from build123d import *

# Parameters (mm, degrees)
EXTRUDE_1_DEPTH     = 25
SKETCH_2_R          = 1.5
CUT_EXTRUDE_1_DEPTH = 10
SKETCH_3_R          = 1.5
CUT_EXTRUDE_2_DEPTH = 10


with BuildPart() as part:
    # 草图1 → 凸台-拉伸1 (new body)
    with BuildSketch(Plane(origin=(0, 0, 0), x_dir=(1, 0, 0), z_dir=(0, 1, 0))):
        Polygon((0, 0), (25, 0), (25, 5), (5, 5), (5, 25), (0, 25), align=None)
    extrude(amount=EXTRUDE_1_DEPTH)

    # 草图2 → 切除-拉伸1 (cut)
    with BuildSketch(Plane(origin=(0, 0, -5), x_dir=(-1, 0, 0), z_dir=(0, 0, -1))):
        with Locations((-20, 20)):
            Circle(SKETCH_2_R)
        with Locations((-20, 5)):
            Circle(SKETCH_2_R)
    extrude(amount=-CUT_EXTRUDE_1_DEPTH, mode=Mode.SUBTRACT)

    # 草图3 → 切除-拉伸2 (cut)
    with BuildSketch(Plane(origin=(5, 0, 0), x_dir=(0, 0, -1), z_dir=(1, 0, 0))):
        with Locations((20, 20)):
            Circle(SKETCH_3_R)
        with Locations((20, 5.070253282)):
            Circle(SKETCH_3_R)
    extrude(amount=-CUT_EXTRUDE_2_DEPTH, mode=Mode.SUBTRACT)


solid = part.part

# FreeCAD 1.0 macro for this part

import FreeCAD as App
import Part
import Sketcher

V = App.Vector

doc = App.newDocument("Part")
body = doc.addObject("PartDesign::Body", "Body")

# Sketch on XZ plane
sketch1 = doc.addObject("Sketcher::SketchObject", "Sketch")
body.addObject(sketch1)
sketch1.AttachmentSupport = (doc.XZ_Plane, [""])
sketch1.MapMode = "FlatFace"
sketch1.addGeometry(Part.LineSegment(V(0, 0, 0), V(25, 0, 0)), False)
sketch1.addGeometry(Part.LineSegment(V(25, 0, 0), V(25, -5, 0)), False)
sketch1.addGeometry(Part.LineSegment(V(25, -5, 0), V(5, -5, 0)), False)
sketch1.addGeometry(Part.LineSegment(V(5, -5, 0), V(5, -25, 0)), False)
sketch1.addGeometry(Part.LineSegment(V(5, -25, 0), V(0, -25, 0)), False)
sketch1.addGeometry(Part.LineSegment(V(0, -25, 0), V(0, 0, 0)), False)
sketch1.addConstraint(Sketcher.Constraint("Coincident", 0, 2, 1, 1))
sketch1.addConstraint(Sketcher.Constraint("Coincident", 1, 2, 2, 1))
sketch1.addConstraint(Sketcher.Constraint("Coincident", 2, 2, 3, 1))
sketch1.addConstraint(Sketcher.Constraint("Coincident", 3, 2, 4, 1))
sketch1.addConstraint(Sketcher.Constraint("Coincident", 4, 2, 5, 1))
sketch1.addConstraint(Sketcher.Constraint("Coincident", 5, 2, 0, 1))
sketch1.addConstraint(Sketcher.Constraint("Horizontal", 0))
sketch1.addConstraint(Sketcher.Constraint("Vertical", 1))
sketch1.addConstraint(Sketcher.Constraint("Horizontal", 2))
sketch1.addConstraint(Sketcher.Constraint("Vertical", 3))
sketch1.addConstraint(Sketcher.Constraint("Horizontal", 4))
sketch1.addConstraint(Sketcher.Constraint("Vertical", 5))
sketch1.addConstraint(Sketcher.Constraint("Coincident", 5, 2, -1, 1))
sketch1.addConstraint(Sketcher.Constraint("Equal", 4, 1))
sketch1.addConstraint(Sketcher.Constraint("Equal", 2, 3))
sketch1.addConstraint(Sketcher.Constraint("DistanceX", 0, 1, 0, 2, 25.0))
sketch1.addConstraint(Sketcher.Constraint("DistanceX", 2, 2, 2, 1, 20.0))
pad1 = doc.addObject("PartDesign::Pad", "Pad")
body.addObject(pad1)
pad1.Profile = sketch1
pad1.Length = 25
pad1.Reversed = True

# Sketch on XY plane
sketch2 = doc.addObject("Sketcher::SketchObject", "Sketch001")
body.addObject(sketch2)
sketch2.AttachmentSupport = (doc.XY_Plane, [""])
sketch2.MapMode = "FlatFace"
sketch2.AttachmentOffset = App.Placement(V(0, 0, -5), App.Rotation())
sketch2.addGeometry(Part.Circle(V(20, 20, 0), V(0, 0, 1), 1.5), False)
sketch2.addGeometry(Part.Circle(V(20, 5, 0), V(0, 0, 1), 1.5), False)
sketch2.addConstraint(Sketcher.Constraint("Equal", 0, 1))
sketch2.addConstraint(Sketcher.Constraint("Vertical", 0, 3, 1, 3))
sketch2.addConstraint(Sketcher.Constraint("Diameter", 0, 3.0))
sketch2.addConstraint(Sketcher.Constraint("DistanceX", -1, 1, 0, 3, 20.0))
sketch2.addConstraint(Sketcher.Constraint("DistanceY", -1, 1, 0, 3, 20.0))
sketch2.addConstraint(Sketcher.Constraint("DistanceY", -1, 1, 1, 3, 5.0))
pocket1 = doc.addObject("PartDesign::Pocket", "Pocket")
body.addObject(pocket1)
pocket1.Profile = sketch2
pocket1.Length = 10
pocket1.Reversed = True

# Sketch on YZ plane
sketch3 = doc.addObject("Sketcher::SketchObject", "Sketch002")
body.addObject(sketch3)
sketch3.AttachmentSupport = (doc.YZ_Plane, [""])
sketch3.MapMode = "FlatFace"
sketch3.AttachmentOffset = App.Placement(V(0, 0, 5), App.Rotation())
sketch3.addGeometry(Part.Circle(V(20, -20, 0), V(0, 0, 1), 1.5), False)
sketch3.addGeometry(Part.Circle(V(5.1, -20, 0), V(0, 0, 1), 1.5), False)
sketch3.addConstraint(Sketcher.Constraint("Equal", 0, 1))
sketch3.addConstraint(Sketcher.Constraint("Horizontal", 0, 3, 1, 3))
sketch3.addConstraint(Sketcher.Constraint("Diameter", 0, 3.0))
sketch3.addConstraint(Sketcher.Constraint("DistanceX", -1, 1, 0, 3, 20.0))
sketch3.addConstraint(Sketcher.Constraint("DistanceY", 0, 3, -1, 1, 20.0))
sketch3.addConstraint(Sketcher.Constraint("DistanceX", -1, 1, 1, 3, 5.070253))
pocket2 = doc.addObject("PartDesign::Pocket", "Pocket001")
body.addObject(pocket2)
pocket2.Profile = sketch3
pocket2.Length = 10

doc.recompute()
